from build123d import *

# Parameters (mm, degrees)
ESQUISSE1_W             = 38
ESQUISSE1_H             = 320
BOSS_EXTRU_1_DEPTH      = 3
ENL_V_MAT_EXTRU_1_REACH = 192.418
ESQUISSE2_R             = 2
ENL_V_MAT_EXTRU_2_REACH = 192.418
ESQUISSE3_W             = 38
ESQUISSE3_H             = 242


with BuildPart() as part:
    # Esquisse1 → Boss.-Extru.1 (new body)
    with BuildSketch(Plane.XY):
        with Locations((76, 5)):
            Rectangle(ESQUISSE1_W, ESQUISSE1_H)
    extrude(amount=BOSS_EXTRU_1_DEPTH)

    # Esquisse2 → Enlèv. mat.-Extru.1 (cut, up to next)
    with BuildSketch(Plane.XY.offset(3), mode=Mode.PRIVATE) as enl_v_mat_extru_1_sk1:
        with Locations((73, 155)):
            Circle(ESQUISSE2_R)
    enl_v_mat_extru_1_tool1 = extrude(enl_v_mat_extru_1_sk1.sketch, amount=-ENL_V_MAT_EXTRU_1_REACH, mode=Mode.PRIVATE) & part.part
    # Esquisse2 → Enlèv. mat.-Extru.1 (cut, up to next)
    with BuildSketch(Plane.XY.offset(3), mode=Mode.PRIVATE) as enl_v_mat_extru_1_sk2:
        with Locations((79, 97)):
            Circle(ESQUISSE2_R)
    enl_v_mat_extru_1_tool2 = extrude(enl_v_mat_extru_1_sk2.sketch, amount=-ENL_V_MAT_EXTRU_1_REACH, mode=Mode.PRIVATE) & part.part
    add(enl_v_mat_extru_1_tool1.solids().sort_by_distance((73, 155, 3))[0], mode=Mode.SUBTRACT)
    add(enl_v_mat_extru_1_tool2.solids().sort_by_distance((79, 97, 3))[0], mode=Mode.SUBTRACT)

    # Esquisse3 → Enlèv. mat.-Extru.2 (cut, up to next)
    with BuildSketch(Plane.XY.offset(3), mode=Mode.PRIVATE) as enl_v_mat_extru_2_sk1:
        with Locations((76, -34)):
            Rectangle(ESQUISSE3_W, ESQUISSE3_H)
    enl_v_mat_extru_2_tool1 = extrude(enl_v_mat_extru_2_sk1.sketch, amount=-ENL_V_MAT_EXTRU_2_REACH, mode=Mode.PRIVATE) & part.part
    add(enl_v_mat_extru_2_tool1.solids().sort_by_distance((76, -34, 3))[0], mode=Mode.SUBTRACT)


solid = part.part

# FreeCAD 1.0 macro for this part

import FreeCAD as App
import Part
import Sketcher


def add_polygon(sketch, points):
    """Adds a closed chain of lines whose ends are joined by coincident constraints."""
    first, n = sketch.GeometryCount, len(points)
    for a, b in zip(points, points[1:] + points[:1]):
        sketch.addGeometry(Part.LineSegment(App.Vector(*a, 0), App.Vector(*b, 0)), False)
    for i in range(n):
        sketch.addConstraint(Sketcher.Constraint("Coincident", first + i, 2, first + (i + 1) % n, 1))

doc = App.newDocument("Part")
body = doc.addObject("PartDesign::Body", "Body")

# Sketch on XY plane
sketch1 = body.newObject("Sketcher::SketchObject", "Sketch")
sketch1.AttachmentSupport = (doc.getObject("XY_Plane"), [""])
sketch1.MapMode = "FlatFace"
add_polygon(sketch1, [(57, 165), (57, -155), (95, -155), (95, 165)])  # lines 0-3
sketch1.addConstraint([
    Sketcher.Constraint("Vertical", 0),
    Sketcher.Constraint("Horizontal", 1),
    Sketcher.Constraint("Vertical", 2),
    Sketcher.Constraint("Horizontal", 3),
    Sketcher.Constraint("DistanceX", 1, 1, 1, 2, 38.0),
    Sketcher.Constraint("DistanceY", 0, 2, 0, 1, 320.0),
    Sketcher.Constraint("DistanceX", -1, 1, 0, 2, 57.0),
    Sketcher.Constraint("DistanceY", 0, 2, -1, 1, 155.0),
])
pad1 = body.newObject("PartDesign::Pad", "Pad")
pad1.Profile = sketch1
pad1.Length = 3

# Sketch on XY plane
sketch2 = body.newObject("Sketcher::SketchObject", "Sketch001")
sketch2.AttachmentSupport = (doc.getObject("XY_Plane"), [""])
sketch2.MapMode = "FlatFace"
sketch2.AttachmentOffset = App.Placement(App.Vector(0, 0, 3), App.Rotation())
sketch2.addGeometry(Part.Circle(App.Vector(73, 155, 0), App.Vector(0, 0, 1), 2), False)
sketch2.addConstraint([
    Sketcher.Constraint("Diameter", 0, 4.0),
    Sketcher.Constraint("DistanceX", -1, 1, 0, 3, 73.0),
    Sketcher.Constraint("DistanceY", -1, 1, 0, 3, 155.0),
])
pocket1 = body.newObject("PartDesign::Pocket", "Pocket")
pocket1.Profile = sketch2
pocket1.Type = "UpToFirst"

# Sketch on XY plane
sketch3 = body.newObject("Sketcher::SketchObject", "Sketch002")
sketch3.AttachmentSupport = (doc.getObject("XY_Plane"), [""])
sketch3.MapMode = "FlatFace"
sketch3.AttachmentOffset = App.Placement(App.Vector(0, 0, 3), App.Rotation())
sketch3.addGeometry(Part.Circle(App.Vector(79, 97, 0), App.Vector(0, 0, 1), 2), False)
sketch3.addConstraint([
    Sketcher.Constraint("Diameter", 0, 4.0),
    Sketcher.Constraint("DistanceX", -1, 1, 0, 3, 79.0),
    Sketcher.Constraint("DistanceY", -1, 1, 0, 3, 97.0),
])
pocket2 = body.newObject("PartDesign::Pocket", "Pocket001")
pocket2.Profile = sketch3
pocket2.Type = "UpToFirst"

# Sketch on XY plane
sketch4 = body.newObject("Sketcher::SketchObject", "Sketch003")
sketch4.AttachmentSupport = (doc.getObject("XY_Plane"), [""])
sketch4.MapMode = "FlatFace"
sketch4.AttachmentOffset = App.Placement(App.Vector(0, 0, 3), App.Rotation())
add_polygon(sketch4, [(57, 87), (57, -155), (95, -155), (95, 87)])  # lines 0-3
sketch4.addConstraint([
    Sketcher.Constraint("Vertical", 0),
    Sketcher.Constraint("Horizontal", 1),
    Sketcher.Constraint("Vertical", 2),
    Sketcher.Constraint("Horizontal", 3),
    Sketcher.Constraint("DistanceX", 1, 1, 1, 2, 38.0),
    Sketcher.Constraint("DistanceY", 0, 2, 0, 1, 242.0),
    Sketcher.Constraint("DistanceX", -1, 1, 0, 2, 57.0),
    Sketcher.Constraint("DistanceY", 0, 2, -1, 1, 155.0),
])
pocket3 = body.newObject("PartDesign::Pocket", "Pocket002")
pocket3.Profile = sketch4
pocket3.Type = "UpToFirst"

doc.recompute()
